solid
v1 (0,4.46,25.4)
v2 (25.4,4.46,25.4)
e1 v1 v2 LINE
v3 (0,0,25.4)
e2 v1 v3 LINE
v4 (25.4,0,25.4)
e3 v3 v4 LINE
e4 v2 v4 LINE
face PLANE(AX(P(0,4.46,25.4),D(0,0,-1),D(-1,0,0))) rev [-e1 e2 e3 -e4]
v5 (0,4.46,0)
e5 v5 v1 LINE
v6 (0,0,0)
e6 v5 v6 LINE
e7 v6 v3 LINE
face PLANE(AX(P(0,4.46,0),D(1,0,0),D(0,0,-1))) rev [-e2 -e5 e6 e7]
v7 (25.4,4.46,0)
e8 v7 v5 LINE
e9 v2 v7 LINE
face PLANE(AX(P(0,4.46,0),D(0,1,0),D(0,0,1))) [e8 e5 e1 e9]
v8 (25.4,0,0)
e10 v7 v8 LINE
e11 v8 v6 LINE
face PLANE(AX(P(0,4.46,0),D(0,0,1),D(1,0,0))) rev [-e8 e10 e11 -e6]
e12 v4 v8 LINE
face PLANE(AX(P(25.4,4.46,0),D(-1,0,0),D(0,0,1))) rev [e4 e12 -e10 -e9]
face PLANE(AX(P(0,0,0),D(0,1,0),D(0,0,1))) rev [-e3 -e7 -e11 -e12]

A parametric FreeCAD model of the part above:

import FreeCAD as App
import Part
import Sketcher
from FreeCAD import Vector
Q = App.Units.Quantity

doc = App.newDocument("Part")
body = doc.addObject("PartDesign::Body", "Body")

sketch1 = body.newObject("Sketcher::SketchObject", "Sketch")
sketch1.AttachmentSupport = (doc.getObject("XZ_Plane"), [""])
sketch1.MapMode = "FlatFace"
sketch1.addGeometry([
    Part.LineSegment(Vector(0, 0, 0), Vector(0, 25, 0)),
    Part.LineSegment(Vector(0, 25, 0), Vector(25, 25, 0)),
    Part.LineSegment(Vector(25, 25, 0), Vector(25, 0, 0)),
    Part.LineSegment(Vector(25, 0, 0), Vector(0, 0, 0)),
], False)
sketch1.addConstraint([
    Sketcher.Constraint("Coincident", 0, 2, 1, 1),
    Sketcher.Constraint("Coincident", 1, 2, 2, 1),
    Sketcher.Constraint("Coincident", 2, 2, 3, 1),
    Sketcher.Constraint("Coincident", 3, 2, 0, 1),
    Sketcher.Constraint("Vertical", 0),
    Sketcher.Constraint("Horizontal", 1),
    Sketcher.Constraint("Vertical", 2),
    Sketcher.Constraint("Horizontal", 3),
    Sketcher.Constraint("Coincident", 3, 2, -1, 1),
    Sketcher.Constraint("Equal", 3, 0),
    Sketcher.Constraint("DistanceX", 1, 1, 1, 2, Q("1 in")),
])
pad1 = body.newObject("PartDesign::Pad", "Pad")
pad1.Profile = sketch1
pad1.Length = 4.46
pad1.Reversed = True

doc.recompute()
